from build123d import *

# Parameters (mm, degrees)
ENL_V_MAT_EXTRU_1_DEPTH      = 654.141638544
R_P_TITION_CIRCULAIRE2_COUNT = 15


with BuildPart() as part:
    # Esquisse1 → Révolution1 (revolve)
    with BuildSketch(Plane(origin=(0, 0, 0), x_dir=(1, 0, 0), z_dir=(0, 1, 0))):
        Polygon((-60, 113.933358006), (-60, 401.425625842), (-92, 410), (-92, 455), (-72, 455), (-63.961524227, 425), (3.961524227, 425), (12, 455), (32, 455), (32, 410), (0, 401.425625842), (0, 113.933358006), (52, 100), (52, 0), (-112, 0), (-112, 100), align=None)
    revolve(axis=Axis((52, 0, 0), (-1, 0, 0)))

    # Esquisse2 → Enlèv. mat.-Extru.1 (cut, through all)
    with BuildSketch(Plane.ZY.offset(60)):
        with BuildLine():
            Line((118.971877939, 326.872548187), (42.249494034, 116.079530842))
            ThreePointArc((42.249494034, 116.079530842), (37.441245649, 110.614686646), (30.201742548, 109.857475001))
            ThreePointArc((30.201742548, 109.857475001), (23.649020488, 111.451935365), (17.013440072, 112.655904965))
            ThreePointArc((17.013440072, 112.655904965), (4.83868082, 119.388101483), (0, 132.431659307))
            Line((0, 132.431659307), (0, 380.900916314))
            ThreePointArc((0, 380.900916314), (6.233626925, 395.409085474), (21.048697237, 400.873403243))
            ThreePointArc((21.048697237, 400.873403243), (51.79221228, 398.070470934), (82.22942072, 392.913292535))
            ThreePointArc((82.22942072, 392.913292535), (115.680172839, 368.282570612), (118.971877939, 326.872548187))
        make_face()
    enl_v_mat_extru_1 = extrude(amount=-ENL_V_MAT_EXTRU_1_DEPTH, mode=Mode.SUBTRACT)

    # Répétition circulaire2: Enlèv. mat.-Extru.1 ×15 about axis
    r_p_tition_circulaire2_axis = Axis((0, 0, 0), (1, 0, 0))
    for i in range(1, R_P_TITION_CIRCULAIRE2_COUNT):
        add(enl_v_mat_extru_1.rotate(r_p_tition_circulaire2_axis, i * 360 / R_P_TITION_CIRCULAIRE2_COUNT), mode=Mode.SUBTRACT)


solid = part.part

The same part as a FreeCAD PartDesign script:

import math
import FreeCAD as App
import Part
import Sketcher
from FreeCAD import Vector
Q = App.Units.Quantity

doc = App.newDocument("Part")
body = doc.addObject("PartDesign::Body", "Body")

# Sketch on XZ plane
sketch1 = body.newObject("Sketcher::SketchObject", "Sketch")
sketch1.AttachmentSupport = (doc.getObject("XZ_Plane"), [""])
sketch1.MapMode = "FlatFace"
sketch1.addGeometry([
    Part.LineSegment(Vector(-60, -401, 0), Vector(-60, -114, 0)),  # 0
    Part.LineSegment(Vector(-60, -114, 0), Vector(-112, -100, 0)),  # 1
    Part.LineSegment(Vector(-112, -100, 0), Vector(-112, 0, 0)),  # 2
    Part.LineSegment(Vector(-112, 0, 0), Vector(52, 0, 0)),  # 3
    Part.LineSegment(Vector(52, 0, 0), Vector(52, -100, 0)),  # 4
    Part.LineSegment(Vector(52, -100, 0), Vector(0, -114, 0)),  # 5
    Part.LineSegment(Vector(0, -114, 0), Vector(0, -401, 0)),  # 6
    Part.LineSegment(Vector(0, -401, 0), Vector(32, -410, 0)),  # 7
    Part.LineSegment(Vector(32, -410, 0), Vector(32, -455, 0)),  # 8
    Part.LineSegment(Vector(32, -455, 0), Vector(12, -455, 0)),  # 9
    Part.LineSegment(Vector(12, -455, 0), Vector(4, -425, 0)),  # 10
    Part.LineSegment(Vector(4, -425, 0), Vector(-64, -425, 0)),  # 11
    Part.LineSegment(Vector(-64, -425, 0), Vector(-72, -455, 0)),  # 12
    Part.LineSegment(Vector(-72, -455, 0), Vector(-92, -455, 0)),  # 13
    Part.LineSegment(Vector(-92, -455, 0), Vector(-92, -410, 0)),  # 14
    Part.LineSegment(Vector(-92, -410, 0), Vector(-60, -401, 0)),  # 15
], False)
sketch1.addConstraint([
    Sketcher.Constraint("Coincident", 0, 2, 1, 1),
    Sketcher.Constraint("Coincident", 1, 2, 2, 1),
    Sketcher.Constraint("Coincident", 2, 2, 3, 1),
    Sketcher.Constraint("Coincident", 3, 2, 4, 1),
    Sketcher.Constraint("Coincident", 4, 2, 5, 1),
    Sketcher.Constraint("Coincident", 5, 2, 6, 1),
    Sketcher.Constraint("Coincident", 6, 2, 7, 1),
    Sketcher.Constraint("Coincident", 7, 2, 8, 1),
    Sketcher.Constraint("Coincident", 8, 2, 9, 1),
    Sketcher.Constraint("Coincident", 9, 2, 10, 1),
    Sketcher.Constraint("Coincident", 10, 2, 11, 1),
    Sketcher.Constraint("Coincident", 11, 2, 12, 1),
    Sketcher.Constraint("Coincident", 12, 2, 13, 1),
    Sketcher.Constraint("Coincident", 13, 2, 14, 1),
    Sketcher.Constraint("Coincident", 14, 2, 15, 1),
    Sketcher.Constraint("Coincident", 15, 2, 0, 1),
    Sketcher.Constraint("Vertical", 0),
    Sketcher.Constraint("Vertical", 2),
    Sketcher.Constraint("Horizontal", 3),
    Sketcher.Constraint("Vertical", 4),
    Sketcher.Constraint("Vertical", 6),
    Sketcher.Constraint("Vertical", 8),
    Sketcher.Constraint("Horizontal", 9),
    Sketcher.Constraint("Horizontal", 11),
    Sketcher.Constraint("Horizontal", 13),
    Sketcher.Constraint("Vertical", 14),
    Sketcher.Constraint("PointOnObject", 2, 2, -1),
    Sketcher.Constraint("PointOnObject", 5, 2, -2),
    Sketcher.Constraint("Parallel", 1, 7),
    Sketcher.Constraint("Perpendicular", 5, 10),
    Sketcher.Constraint("Perpendicular", 7, 12),
    Sketcher.Constraint("Perpendicular", 10, 15),
    Sketcher.Constraint("Horizontal", 1, 2, 4, 2),
    Sketcher.Constraint("Horizontal", 0, 2, 5, 2),
    Sketcher.Constraint("Horizontal", 9, 2, 12, 2),
    Sketcher.Constraint("Horizontal", 7, 2, 14, 2),
    Sketcher.Constraint("Horizontal", 6, 2, 15, 2),
    Sketcher.Constraint("Equal", 9, 13),
    Sketcher.Constraint("Equal", 1, 5),
    Sketcher.Constraint("DistanceX", 3, 1, 3, 2, 164.0),
    Sketcher.Constraint("DistanceX", 9, 2, 9, 1, 20.0),
    Sketcher.Constraint("DistanceY", 2, 1, 2, 2, 100.0),
    Sketcher.Constraint("DistanceY", 8, 2, 8, 1, 45.0),
    Sketcher.Constraint("Angle", 1, Q("165 deg")),
    Sketcher.Constraint("DistanceX", 0, 2, -1, 1, 60.0),
    Sketcher.Constraint("DistanceX", -1, 1, 7, 2, 32.0),
    Sketcher.Constraint("DistanceY", 7, 2, -1, 1, 410.0),
    Sketcher.Constraint("DistanceY", 10, 2, -1, 1, 425.0),
])
revolution = body.newObject("PartDesign::Revolution", "Revolution")
revolution.Profile = sketch1
revolution.ReferenceAxis = (sketch1, ["H_Axis"])
revolution.Angle = 360

# Sketch on YZ plane
sketch2 = body.newObject("Sketcher::SketchObject", "Sketch001")
sketch2.AttachmentSupport = (doc.getObject("YZ_Plane"), [""])
sketch2.MapMode = "FlatFace"
sketch2.AttachmentOffset = App.Placement(Vector(0, 0, -60), App.Rotation())
sketch2.addGeometry([
    Part.LineSegment(Vector(116, 42, 0), Vector(327, 119, 0)),  # 0
    Part.ArcOfCircle(Part.Circle(Vector(344, 72, 0), Vector(0, 0, 1), 50), math.radians(12), math.radians(110)),  # 1
    Part.ArcOfCircle(Part.Circle(Vector(0, 0, 0), Vector(0, 0, 1), 401), math.radians(3.01), math.radians(11.82)),  # 2
    Part.ArcOfCircle(Part.Circle(Vector(381, 20, 0), Vector(0, 0, 1), 20), math.radians(-90), math.radians(3)),  # 3
    Part.LineSegment(Vector(381, 0, 0), Vector(132, 0, 0)),  # 4
    Part.ArcOfCircle(Part.Circle(Vector(132, 20, 0), Vector(0, 0, 1), 20), math.radians(-171), math.radians(-90)),  # 5
    Part.ArcOfCircle(Part.Circle(Vector(0, 0, 0), Vector(0, 0, 1), 114), math.radians(8.59), math.radians(15.37)),  # 6
    Part.ArcOfCircle(Part.Circle(Vector(119, 33, 0), Vector(0, 0, 1), 10), math.radians(110), math.radians(195)),  # 7
], False)
sketch2.addConstraint([
    Sketcher.Constraint("Tangent", 0, 2, 1, 2),
    Sketcher.Constraint("Tangent", 1, 1, 2, 2),
    Sketcher.Constraint("Tangent", 2, 1, 3, 2),
    Sketcher.Constraint("Tangent", 3, 1, 4, 1),
    Sketcher.Constraint("Tangent", 4, 2, 5, 2),
    Sketcher.Constraint("Tangent", 5, 1, 6, 1),
    Sketcher.Constraint("Tangent", 6, 2, 7, 2),
    Sketcher.Constraint("Tangent", 7, 1, 0, 1),
    Sketcher.Constraint("Horizontal", 4),
    Sketcher.Constraint("Coincident", 2, 3, -1, 1),
    Sketcher.Constraint("Coincident", 6, 3, -1, 1),
    Sketcher.Constraint("Equal", 3, 5),
    Sketcher.Constraint("PointOnObject", 3, 1, -1),
    Sketcher.Constraint("Radius", 1, 50.0),
    Sketcher.Constraint("Radius", 3, 20.0),
    Sketcher.Constraint("Radius", 7, 10.0),
    Sketcher.Constraint("Angle", 0, Q("20 deg")),
    Sketcher.Constraint("Radius", 2, 401.425626),
    Sketcher.Constraint("Radius", 6, 113.933358),
    Sketcher.Constraint("DistanceX", -1, 1, 0, 2, 326.872548),
])
pocket1 = body.newObject("PartDesign::Pocket", "Pocket")
pocket1.Profile = sketch2
pocket1.Type = "ThroughAll"
pocket1.Reversed = True
doc.recompute()

polarpattern = body.newObject("PartDesign::PolarPattern", "PolarPattern")
polarpattern.Originals = [pocket1]
polarpattern.Axis = (doc.getObject("X_Axis"), [""])
polarpattern.Angle = 360
polarpattern.Occurrences = 15
body.Tip = polarpattern

doc.recompute()
